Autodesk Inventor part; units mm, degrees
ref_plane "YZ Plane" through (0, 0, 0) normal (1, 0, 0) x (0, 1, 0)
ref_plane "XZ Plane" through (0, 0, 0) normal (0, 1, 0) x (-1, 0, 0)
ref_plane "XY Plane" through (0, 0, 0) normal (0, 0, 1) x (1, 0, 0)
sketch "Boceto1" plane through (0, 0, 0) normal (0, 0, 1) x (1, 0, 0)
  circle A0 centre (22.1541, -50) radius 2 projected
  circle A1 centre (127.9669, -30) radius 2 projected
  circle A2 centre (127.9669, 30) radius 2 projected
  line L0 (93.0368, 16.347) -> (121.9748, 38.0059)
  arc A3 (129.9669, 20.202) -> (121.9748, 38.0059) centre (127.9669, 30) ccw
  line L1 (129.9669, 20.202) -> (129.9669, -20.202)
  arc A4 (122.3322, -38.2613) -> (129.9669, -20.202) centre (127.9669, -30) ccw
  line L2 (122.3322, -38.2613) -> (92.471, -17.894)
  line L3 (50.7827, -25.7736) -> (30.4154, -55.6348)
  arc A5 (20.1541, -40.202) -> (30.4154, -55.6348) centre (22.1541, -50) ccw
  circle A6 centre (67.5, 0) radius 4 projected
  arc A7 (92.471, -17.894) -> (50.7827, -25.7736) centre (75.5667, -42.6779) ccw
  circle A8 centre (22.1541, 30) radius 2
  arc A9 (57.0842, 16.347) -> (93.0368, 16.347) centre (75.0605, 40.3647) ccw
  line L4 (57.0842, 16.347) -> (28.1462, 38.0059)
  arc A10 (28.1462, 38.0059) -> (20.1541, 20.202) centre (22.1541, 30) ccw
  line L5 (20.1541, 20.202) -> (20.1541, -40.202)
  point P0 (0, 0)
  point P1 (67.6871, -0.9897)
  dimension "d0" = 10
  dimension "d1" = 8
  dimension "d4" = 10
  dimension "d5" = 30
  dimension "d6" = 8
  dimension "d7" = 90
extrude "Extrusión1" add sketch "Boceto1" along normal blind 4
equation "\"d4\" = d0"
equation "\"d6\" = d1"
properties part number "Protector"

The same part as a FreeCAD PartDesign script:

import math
import FreeCAD as App
import Part
import Sketcher

V = App.Vector

doc = App.newDocument("Part")
body = doc.addObject("PartDesign::Body", "Body")

# Sketch on XY plane
sketch1 = body.newObject("Sketcher::SketchObject", "Sketch")
sketch1.AttachmentSupport = (doc.getObject("XY_Plane"), [""])
sketch1.MapMode = "FlatFace"
sketch1.addGeometry([
    Part.LineSegment(V(121.9748, 38.0059, 0), V(93.0368, 16.347, 0)),  # 0
    Part.ArcOfCircle(Part.Circle(V(75.0605, 40.3647, 0), V(0, 0, 1), 29.999955), math.radians(-126.813404), math.radians(-53.186596)),  # 1
    Part.LineSegment(V(57.0842, 16.347, 0), V(28.1462, 38.0059, 0)),  # 2
    Part.ArcOfCircle(Part.Circle(V(22.1541, 30, 0), V(0, 0, 1), 9.999985), math.radians(53.186596), math.radians(258.463088)),  # 3
    Part.LineSegment(V(20.1541, 20.202, 0), V(20.1541, -40.202, 0)),  # 4
    Part.ArcOfCircle(Part.Circle(V(22.1541, -50, 0), V(0, 0, 1), 10.00004), math.radians(101.536912), math.radians(325.703203)),  # 5
    Part.LineSegment(V(30.4154, -55.6348, 0), V(50.7827, -25.7736, 0)),  # 6
    Part.ArcOfCircle(Part.Circle(V(75.5667, -42.6779, 0), V(0, 0, 1), 29.999951), math.radians(55.703361), math.radians(145.703469)),  # 7
    Part.LineSegment(V(92.471, -17.894, 0), V(122.3322, -38.2613, 0)),  # 8
    Part.ArcOfCircle(Part.Circle(V(127.9669, -30, 0), V(0, 0, 1), 9.999946), math.radians(-124.296323), math.radians(78.463088)),  # 9
    Part.LineSegment(V(129.9669, -20.202, 0), V(129.9669, 20.202, 0)),  # 10
    Part.ArcOfCircle(Part.Circle(V(127.9669, 30, 0), V(0, 0, 1), 10.00004), math.radians(-78.463088), math.radians(126.813404)),  # 11
    Part.Circle(V(22.1541, -50, 0), V(0, 0, 1), 2),  # 12
    Part.Circle(V(127.9669, -30, 0), V(0, 0, 1), 2),  # 13
    Part.Circle(V(67.5, 0, 0), V(0, 0, 1), 4),  # 14
    Part.Circle(V(22.1541, 30, 0), V(0, 0, 1), 2),  # 15
    Part.Circle(V(127.9669, 30, 0), V(0, 0, 1), 2),  # 16
], False)
sketch1.addConstraint([
    Sketcher.Constraint("Tangent", 0, 2, 1, 2),
    Sketcher.Constraint("Tangent", 1, 1, 2, 1),
    Sketcher.Constraint("Tangent", 2, 2, 3, 1),
    Sketcher.Constraint("Coincident", 3, 2, 4, 1),
    Sketcher.Constraint("Coincident", 4, 2, 5, 1),
    Sketcher.Constraint("Tangent", 5, 2, 6, 1),
    Sketcher.Constraint("Tangent", 6, 2, 7, 2),
    Sketcher.Constraint("Tangent", 7, 1, 8, 1),
    Sketcher.Constraint("Tangent", 8, 2, 9, 1),
    Sketcher.Constraint("Coincident", 9, 2, 10, 1),
    Sketcher.Constraint("Coincident", 10, 2, 11, 1),
    Sketcher.Constraint("Tangent", 11, 2, 0, 1),
    Sketcher.Constraint("Vertical", 4),
    Sketcher.Constraint("Vertical", 10),
    Sketcher.Constraint("Coincident", 12, 3, 5, 3),
    Sketcher.Constraint("Coincident", 13, 3, 9, 3),
    Sketcher.Constraint("Coincident", 15, 3, 3, 3),
    Sketcher.Constraint("Coincident", 16, 3, 11, 3),
    Sketcher.Constraint("Equal", 3, 5),
    Sketcher.Constraint("Equal", 1, 7),
    Sketcher.Constraint("Equal", 5, 9),
    Sketcher.Constraint("Equal", 9, 11),
    Sketcher.Constraint("Equal", 12, 13),
    Sketcher.Constraint("Equal", 13, 15),
    Sketcher.Constraint("Equal", 15, 16),
    Sketcher.Constraint("Symmetric", 9, 3, 11, 3, -1),
    Sketcher.Constraint("PointOnObject", 14, 3, -1),
    Sketcher.Constraint("Perpendicular", 6, 8),
    Sketcher.Constraint("Horizontal", 3, 3, 11, 3),
    Sketcher.Constraint("Horizontal", 0, 2, 1, 1),
    Sketcher.Constraint("Horizontal", 3, 2, 10, 2),
    Sketcher.Constraint("Vertical", 3, 3, 5, 3),
    Sketcher.Constraint("Equal", 2, 6),
    Sketcher.Constraint("Equal", 6, 8),
    Sketcher.Constraint("Diameter", 14, 8.0),
    Sketcher.Constraint("Radius", 1, 30.0),
    Sketcher.Constraint("Radius", 3, 10.0),
    Sketcher.Constraint("Diameter", 12, 4.0),
    Sketcher.Constraint("DistanceY", -1, 1, 3, 3, 30.0),
    Sketcher.Constraint("DistanceY", 5, 3, -1, 1, 50.0),
    Sketcher.Constraint("DistanceX", 3, 2, 3, 3, 2.0),
    Sketcher.Constraint("DistanceX", -1, 1, 14, 3, 67.5),
    Sketcher.Constraint("DistanceX", 0, 2, 11, 3, 34.93),
    Sketcher.Constraint("DistanceX", -1, 1, 3, 3, 22.154),
])
pad1 = body.newObject("PartDesign::Pad", "Pad")
pad1.Profile = sketch1
pad1.Length = 4

doc.recompute()
